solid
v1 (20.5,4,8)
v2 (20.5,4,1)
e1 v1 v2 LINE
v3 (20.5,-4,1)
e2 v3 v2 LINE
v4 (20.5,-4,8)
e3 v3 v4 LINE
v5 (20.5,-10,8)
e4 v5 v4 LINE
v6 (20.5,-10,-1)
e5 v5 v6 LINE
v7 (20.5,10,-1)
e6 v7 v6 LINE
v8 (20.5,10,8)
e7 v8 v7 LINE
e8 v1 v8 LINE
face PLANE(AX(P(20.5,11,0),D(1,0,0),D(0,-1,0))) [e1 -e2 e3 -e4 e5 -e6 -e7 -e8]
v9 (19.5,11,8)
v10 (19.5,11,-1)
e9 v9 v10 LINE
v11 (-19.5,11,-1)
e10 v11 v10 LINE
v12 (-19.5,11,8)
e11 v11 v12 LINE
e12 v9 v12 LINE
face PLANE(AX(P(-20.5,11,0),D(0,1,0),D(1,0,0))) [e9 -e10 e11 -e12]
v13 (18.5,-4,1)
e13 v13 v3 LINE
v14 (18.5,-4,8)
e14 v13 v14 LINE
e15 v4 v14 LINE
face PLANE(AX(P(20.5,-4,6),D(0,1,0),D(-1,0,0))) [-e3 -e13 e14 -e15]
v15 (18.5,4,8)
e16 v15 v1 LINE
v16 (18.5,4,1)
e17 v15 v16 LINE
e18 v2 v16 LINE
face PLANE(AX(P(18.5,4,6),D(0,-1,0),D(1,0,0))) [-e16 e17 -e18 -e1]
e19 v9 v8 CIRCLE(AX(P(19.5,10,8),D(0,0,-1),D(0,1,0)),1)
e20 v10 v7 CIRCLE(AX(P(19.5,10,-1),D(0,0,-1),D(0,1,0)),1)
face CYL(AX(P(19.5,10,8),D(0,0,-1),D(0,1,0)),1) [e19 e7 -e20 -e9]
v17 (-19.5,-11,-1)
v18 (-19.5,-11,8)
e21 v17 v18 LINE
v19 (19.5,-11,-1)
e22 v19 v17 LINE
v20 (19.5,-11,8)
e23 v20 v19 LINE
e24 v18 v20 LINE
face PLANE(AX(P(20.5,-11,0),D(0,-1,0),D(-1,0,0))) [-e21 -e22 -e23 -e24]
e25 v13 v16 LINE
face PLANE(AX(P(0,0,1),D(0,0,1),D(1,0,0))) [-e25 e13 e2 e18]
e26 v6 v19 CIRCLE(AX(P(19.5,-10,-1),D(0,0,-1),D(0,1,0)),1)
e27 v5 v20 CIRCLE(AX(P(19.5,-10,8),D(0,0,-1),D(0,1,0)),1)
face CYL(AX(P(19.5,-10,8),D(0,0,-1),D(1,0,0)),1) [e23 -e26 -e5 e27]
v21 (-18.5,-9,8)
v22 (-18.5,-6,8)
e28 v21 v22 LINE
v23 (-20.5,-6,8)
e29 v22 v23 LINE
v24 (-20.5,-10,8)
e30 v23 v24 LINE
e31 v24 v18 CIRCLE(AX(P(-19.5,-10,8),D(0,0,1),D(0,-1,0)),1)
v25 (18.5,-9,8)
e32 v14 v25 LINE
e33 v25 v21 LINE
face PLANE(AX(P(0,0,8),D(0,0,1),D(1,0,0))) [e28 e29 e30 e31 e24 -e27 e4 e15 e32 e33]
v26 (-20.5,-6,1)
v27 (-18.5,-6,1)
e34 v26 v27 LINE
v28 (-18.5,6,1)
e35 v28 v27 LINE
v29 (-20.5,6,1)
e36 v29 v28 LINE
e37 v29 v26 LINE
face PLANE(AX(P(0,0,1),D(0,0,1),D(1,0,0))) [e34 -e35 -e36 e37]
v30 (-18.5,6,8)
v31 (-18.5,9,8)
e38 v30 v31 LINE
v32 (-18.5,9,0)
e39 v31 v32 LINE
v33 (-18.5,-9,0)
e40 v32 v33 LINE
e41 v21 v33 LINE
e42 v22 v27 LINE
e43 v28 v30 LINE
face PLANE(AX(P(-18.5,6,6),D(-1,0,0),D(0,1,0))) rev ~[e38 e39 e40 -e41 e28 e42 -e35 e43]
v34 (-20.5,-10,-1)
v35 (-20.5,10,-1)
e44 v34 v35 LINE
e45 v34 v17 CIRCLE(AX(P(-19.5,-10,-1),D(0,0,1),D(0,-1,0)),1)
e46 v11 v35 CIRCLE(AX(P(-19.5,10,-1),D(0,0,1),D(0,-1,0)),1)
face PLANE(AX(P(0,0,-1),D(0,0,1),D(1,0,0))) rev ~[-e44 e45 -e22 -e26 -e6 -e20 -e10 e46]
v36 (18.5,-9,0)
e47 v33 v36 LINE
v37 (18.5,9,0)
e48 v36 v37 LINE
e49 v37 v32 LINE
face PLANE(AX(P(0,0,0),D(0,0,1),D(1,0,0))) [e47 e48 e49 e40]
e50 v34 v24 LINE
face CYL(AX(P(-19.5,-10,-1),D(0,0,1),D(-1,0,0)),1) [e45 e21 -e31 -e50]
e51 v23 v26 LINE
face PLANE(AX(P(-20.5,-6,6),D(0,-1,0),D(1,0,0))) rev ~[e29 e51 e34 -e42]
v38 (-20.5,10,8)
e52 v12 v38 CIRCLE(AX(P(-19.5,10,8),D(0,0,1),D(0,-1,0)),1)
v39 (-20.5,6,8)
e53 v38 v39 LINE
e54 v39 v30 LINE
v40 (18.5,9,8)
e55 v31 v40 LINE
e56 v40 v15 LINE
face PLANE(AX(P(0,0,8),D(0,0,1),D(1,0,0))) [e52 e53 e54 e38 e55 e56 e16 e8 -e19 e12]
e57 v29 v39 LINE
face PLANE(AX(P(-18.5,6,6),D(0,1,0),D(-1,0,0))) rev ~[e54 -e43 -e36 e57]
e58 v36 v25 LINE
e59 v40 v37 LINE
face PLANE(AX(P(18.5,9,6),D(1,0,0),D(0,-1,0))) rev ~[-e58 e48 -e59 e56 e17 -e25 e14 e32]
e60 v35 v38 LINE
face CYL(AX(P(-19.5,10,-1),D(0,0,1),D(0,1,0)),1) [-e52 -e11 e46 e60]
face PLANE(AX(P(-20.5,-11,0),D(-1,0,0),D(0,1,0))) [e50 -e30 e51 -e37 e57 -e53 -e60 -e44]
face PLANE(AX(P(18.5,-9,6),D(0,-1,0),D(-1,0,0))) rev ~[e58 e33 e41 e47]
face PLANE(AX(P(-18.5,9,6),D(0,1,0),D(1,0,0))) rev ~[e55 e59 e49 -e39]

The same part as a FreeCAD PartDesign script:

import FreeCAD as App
import Part
import Sketcher
Q = App.Units.Quantity


def edges_at(feature, points):
    """Names of the edges that pass closest to the given points."""
    edges = feature.Shape.Edges
    near = lambda p: min(range(len(edges)), key=lambda i: edges[i].distToShape(Part.Vertex(*p))[0])
    return sorted({f"Edge{near(p) + 1}" for p in points})

doc = App.newDocument("Part")
params = doc.addObject("Spreadsheet::Sheet", "Params")
for row, (alias, value) in enumerate([
    ("sketch1_width", "41 mm"),
    ("sketch1_height", "22 mm"),
    ("pad1_length", "1 mm"),
    ("sketch2_width", "37 mm"),
    ("sketch2_height", "18 mm"),
    ("pad2_length", "6 mm"),
    ("sketch3_height", "12 mm"),
    ("sketch3_width", "20.5 mm"),
    ("pocket1_length", "5 mm"),
    ("sketch4_height", "8 mm"),
    ("sketch4_width", "20.5 mm"),
    ("pocket2_length", "5 mm"),
    ("sketch5_width", "2 mm"),
    ("sketch5_width2", "37 mm"),
    ("sketch5_height", "7 mm"),
    ("sketch5_height2", "5 mm"),
    ("pad3_length", "2 mm"),
    ("fillet_radius", "1 mm"),
], start=1):
    params.set(f"A{row}", alias)
    params.set(f"B{row}", "=" + value)
    params.setAlias(f"B{row}", alias)

body = doc.addObject("PartDesign::Body", "Body")

sketch1 = body.newObject("Sketcher::SketchObject", "Sketch")
sketch1.AttachmentSupport = (doc.getObject("XY_Plane"), [""])
sketch1.MapMode = "FlatFace"
sketch1.addGeometry([
    Part.LineSegment(App.Vector(20, 11, 0), App.Vector(-20, 11, 0)),
    Part.LineSegment(App.Vector(-20, 11, 0), App.Vector(-20, -11, 0)),
    Part.LineSegment(App.Vector(-20, -11, 0), App.Vector(20, -11, 0)),
    Part.LineSegment(App.Vector(20, -11, 0), App.Vector(20, 11, 0)),
], False)
sketch1.addConstraint([
    Sketcher.Constraint("Coincident", 0, 2, 1, 1),
    Sketcher.Constraint("Coincident", 1, 2, 2, 1),
    Sketcher.Constraint("Coincident", 2, 2, 3, 1),
    Sketcher.Constraint("Coincident", 3, 2, 0, 1),
    Sketcher.Constraint("Horizontal", 0),
    Sketcher.Constraint("Vertical", 1),
    Sketcher.Constraint("Horizontal", 2),
    Sketcher.Constraint("Vertical", 3),
    Sketcher.Constraint("Symmetric", 0, 2, 2, 2, -1, 1),
    Sketcher.Constraint("DistanceX", 0, 2, 0, 1, Q("41 mm")),
    Sketcher.Constraint("DistanceY", 1, 2, 1, 1, Q("22 mm")),
])
sketch1.setExpression("Constraints[9]", "Params.sketch1_width")
sketch1.setExpression("Constraints[10]", "Params.sketch1_height")
pad1 = body.newObject("PartDesign::Pad", "Pad")
pad1.Profile = sketch1
pad1.setExpression("Length", "Params.pad1_length")
pad1.Reversed = True

sketch2 = body.newObject("Sketcher::SketchObject", "Sketch001")
sketch2.AttachmentSupport = (doc.getObject("XY_Plane"), [""])
sketch2.MapMode = "FlatFace"
sketch2.addGeometry([
    Part.LineSegment(App.Vector(20, 11, 0), App.Vector(-20, 11, 0)),
    Part.LineSegment(App.Vector(-20, 11, 0), App.Vector(-20, -11, 0)),
    Part.LineSegment(App.Vector(-20, -11, 0), App.Vector(20, -11, 0)),
    Part.LineSegment(App.Vector(20, -11, 0), App.Vector(20, 11, 0)),
    Part.LineSegment(App.Vector(18, -9, 0), App.Vector(-18, -9, 0)),
    Part.LineSegment(App.Vector(-18, -9, 0), App.Vector(-18, 9, 0)),
    Part.LineSegment(App.Vector(-18, 9, 0), App.Vector(18, 9, 0)),
    Part.LineSegment(App.Vector(18, 9, 0), App.Vector(18, -9, 0)),
], False)
sketch2.addConstraint([
    Sketcher.Constraint("Coincident", 0, 2, 1, 1),
    Sketcher.Constraint("Coincident", 1, 2, 2, 1),
    Sketcher.Constraint("Coincident", 2, 2, 3, 1),
    Sketcher.Constraint("Coincident", 3, 2, 0, 1),
    Sketcher.Constraint("Coincident", 4, 2, 5, 1),
    Sketcher.Constraint("Coincident", 5, 2, 6, 1),
    Sketcher.Constraint("Coincident", 6, 2, 7, 1),
    Sketcher.Constraint("Coincident", 7, 2, 4, 1),
    Sketcher.Constraint("Horizontal", 0),
    Sketcher.Constraint("Vertical", 1),
    Sketcher.Constraint("Horizontal", 2),
    Sketcher.Constraint("Vertical", 3),
    Sketcher.Constraint("Horizontal", 4),
    Sketcher.Constraint("Vertical", 5),
    Sketcher.Constraint("Horizontal", 6),
    Sketcher.Constraint("Vertical", 7),
    Sketcher.Constraint("Symmetric", 0, 2, 2, 2, -1, 1),
    Sketcher.Constraint("Symmetric", 4, 2, 6, 2, -1, 1),
    Sketcher.Constraint("DistanceX", 4, 2, 4, 1, Q("37 mm")),
    Sketcher.Constraint("DistanceY", 5, 1, 5, 2, Q("18 mm")),
    Sketcher.Constraint("DistanceX", 1, 2, 4, 2, Q("2 mm")),
    Sketcher.Constraint("DistanceY", 1, 2, 4, 2, Q("2 mm")),
])
sketch2.setExpression("Constraints[18]", "Params.sketch2_width")
sketch2.setExpression("Constraints[19]", "Params.sketch2_height")
pad2 = body.newObject("PartDesign::Pad", "Pad001")
pad2.Profile = sketch2
pad2.setExpression("Length", "Params.pad2_length")

sketch3 = body.newObject("Sketcher::SketchObject", "Sketch002")
sketch3.AttachmentSupport = (doc.getObject("XY_Plane"), [""])
sketch3.MapMode = "FlatFace"
sketch3.AttachmentOffset = App.Placement(App.Vector(0, 0, 6), App.Rotation())
sketch3.addGeometry([
    Part.LineSegment(App.Vector(-20, -6, 0), App.Vector(0, -6, 0)),
    Part.LineSegment(App.Vector(0, -6, 0), App.Vector(0, 6, 0)),
    Part.LineSegment(App.Vector(0, 6, 0), App.Vector(-20, 6, 0)),
    Part.LineSegment(App.Vector(-20, 6, 0), App.Vector(-20, -6, 0)),
], False)
sketch3.addConstraint([
    Sketcher.Constraint("Coincident", 0, 2, 1, 1),
    Sketcher.Constraint("Coincident", 1, 2, 2, 1),
    Sketcher.Constraint("Coincident", 2, 2, 3, 1),
    Sketcher.Constraint("Coincident", 3, 2, 0, 1),
    Sketcher.Constraint("Horizontal", 0),
    Sketcher.Constraint("Vertical", 1),
    Sketcher.Constraint("Horizontal", 2),
    Sketcher.Constraint("Vertical", 3),
    Sketcher.Constraint("Symmetric", 0, 2, 1, 2, -1, 1),
    Sketcher.Constraint("DistanceY", 1, 1, 1, 2, Q("12 mm")),
    Sketcher.Constraint("DistanceX", 0, 1, 0, 2, Q("20.5 mm")),
])
sketch3.setExpression("Constraints[9]", "Params.sketch3_height")
sketch3.setExpression("Constraints[10]", "Params.sketch3_width")
pocket1 = body.newObject("PartDesign::Pocket", "Pocket")
pocket1.Profile = sketch3
pocket1.setExpression("Length", "Params.pocket1_length")

sketch4 = body.newObject("Sketcher::SketchObject", "Sketch003")
sketch4.AttachmentSupport = (doc.getObject("XY_Plane"), [""])
sketch4.MapMode = "FlatFace"
sketch4.AttachmentOffset = App.Placement(App.Vector(0, 0, 6), App.Rotation())
sketch4.addGeometry([
    Part.LineSegment(App.Vector(20, -4, 0), App.Vector(20, 4, 0)),
    Part.LineSegment(App.Vector(20, 4, 0), App.Vector(0, 4, 0)),
    Part.LineSegment(App.Vector(0, 4, 0), App.Vector(0, -4, 0)),
    Part.LineSegment(App.Vector(0, -4, 0), App.Vector(20, -4, 0)),
], False)
sketch4.addConstraint([
    Sketcher.Constraint("Coincident", 0, 2, 1, 1),
    Sketcher.Constraint("Coincident", 1, 2, 2, 1),
    Sketcher.Constraint("Coincident", 2, 2, 3, 1),
    Sketcher.Constraint("Coincident", 3, 2, 0, 1),
    Sketcher.Constraint("Vertical", 0),
    Sketcher.Constraint("Horizontal", 1),
    Sketcher.Constraint("Vertical", 2),
    Sketcher.Constraint("Horizontal", 3),
    Sketcher.Constraint("Symmetric", 1, 2, 2, 2, -1, 1),
    Sketcher.Constraint("DistanceY", 0, 1, 0, 2, Q("8 mm")),
    Sketcher.Constraint("DistanceX", 1, 2, 1, 1, Q("20.5 mm")),
])
sketch4.setExpression("Constraints[9]", "Params.sketch4_height")
sketch4.setExpression("Constraints[10]", "Params.sketch4_width")
pocket2 = body.newObject("PartDesign::Pocket", "Pocket001")
pocket2.Profile = sketch4
pocket2.setExpression("Length", "Params.pocket2_length")

sketch5 = body.newObject("Sketcher::SketchObject", "Sketch004")
sketch5.AttachmentSupport = (doc.getObject("XY_Plane"), [""])
sketch5.MapMode = "FlatFace"
sketch5.AttachmentOffset = App.Placement(App.Vector(0, 0, 6), App.Rotation())
sketch5.addGeometry([
    Part.LineSegment(App.Vector(20.5, -11, 0), App.Vector(20.5, -4, 0)),
    Part.LineSegment(App.Vector(20.5, -4, 0), App.Vector(18.5, -4, 0)),
    Part.LineSegment(App.Vector(18.5, -4, 0), App.Vector(18.5, -9, 0)),
    Part.LineSegment(App.Vector(18.5, -9, 0), App.Vector(-18.5, -9, 0)),
    Part.LineSegment(App.Vector(-18.5, -9, 0), App.Vector(-18.5, -6, 0)),
    Part.LineSegment(App.Vector(-18.5, -6, 0), App.Vector(-20.5, -6, 0)),
    Part.LineSegment(App.Vector(-20.5, -6, 0), App.Vector(-20.5, -11, 0)),
    Part.LineSegment(App.Vector(-20.5, -11, 0), App.Vector(20.5, -11, 0)),
    Part.LineSegment(App.Vector(18.5, 9, 0), App.Vector(18.5, 4, 0)),
    Part.LineSegment(App.Vector(18.5, 4, 0), App.Vector(20.5, 4, 0)),
    Part.LineSegment(App.Vector(20.5, 4, 0), App.Vector(20.5, 11, 0)),
    Part.LineSegment(App.Vector(20.5, 11, 0), App.Vector(-20.5, 11, 0)),
    Part.LineSegment(App.Vector(-20.5, 11, 0), App.Vector(-20.5, 6, 0)),
    Part.LineSegment(App.Vector(-20.5, 6, 0), App.Vector(-18.5, 6, 0)),
    Part.LineSegment(App.Vector(-18.5, 6, 0), App.Vector(-18.5, 9, 0)),
    Part.LineSegment(App.Vector(-18.5, 9, 0), App.Vector(18.5, 9, 0)),
], False)
sketch5.addConstraint([
    Sketcher.Constraint("Coincident", 0, 2, 1, 1),
    Sketcher.Constraint("Coincident", 1, 2, 2, 1),
    Sketcher.Constraint("Coincident", 2, 2, 3, 1),
    Sketcher.Constraint("Coincident", 3, 2, 4, 1),
    Sketcher.Constraint("Coincident", 4, 2, 5, 1),
    Sketcher.Constraint("Coincident", 5, 2, 6, 1),
    Sketcher.Constraint("Coincident", 6, 2, 7, 1),
    Sketcher.Constraint("Coincident", 7, 2, 0, 1),
    Sketcher.Constraint("Coincident", 8, 2, 9, 1),
    Sketcher.Constraint("Coincident", 9, 2, 10, 1),
    Sketcher.Constraint("Coincident", 10, 2, 11, 1),
    Sketcher.Constraint("Coincident", 11, 2, 12, 1),
    Sketcher.Constraint("Coincident", 12, 2, 13, 1),
    Sketcher.Constraint("Coincident", 13, 2, 14, 1),
    Sketcher.Constraint("Coincident", 14, 2, 15, 1),
    Sketcher.Constraint("Coincident", 15, 2, 8, 1),
    Sketcher.Constraint("Vertical", 0),
    Sketcher.Constraint("Horizontal", 1),
    Sketcher.Constraint("Vertical", 2),
    Sketcher.Constraint("Horizontal", 3),
    Sketcher.Constraint("Vertical", 4),
    Sketcher.Constraint("Horizontal", 5),
    Sketcher.Constraint("Vertical", 6),
    Sketcher.Constraint("Horizontal", 7),
    Sketcher.Constraint("Vertical", 8),
    Sketcher.Constraint("Horizontal", 9),
    Sketcher.Constraint("Vertical", 10),
    Sketcher.Constraint("Horizontal", 11),
    Sketcher.Constraint("Vertical", 12),
    Sketcher.Constraint("Horizontal", 13),
    Sketcher.Constraint("Vertical", 14),
    Sketcher.Constraint("Horizontal", 15),
    Sketcher.Constraint("Symmetric", 6, 2, 10, 2, -1, 1),
    Sketcher.Constraint("Symmetric", 2, 2, 14, 2, -1, 1),
    Sketcher.Constraint("Symmetric", 1, 2, 8, 2, -1),
    Sketcher.Constraint("Symmetric", 5, 2, 12, 2, -1),
    Sketcher.Constraint("Vertical", 7, 2, 9, 2),
    Sketcher.Constraint("Vertical", 4, 2, 13, 2),
    Sketcher.Constraint("Equal", 2, 6),
    Sketcher.Constraint("DistanceX", 1, 2, 1, 1, Q("2 mm")),
    Sketcher.Constraint("DistanceX", 3, 2, 3, 1, Q("37 mm")),
    Sketcher.Constraint("DistanceY", 0, 1, 0, 2, Q("7 mm")),
    Sketcher.Constraint("DistanceY", 2, 2, 2, 1, Q("5 mm")),
    Sketcher.Constraint("DistanceY", 0, 2, -1, 1, Q("4 mm")),
])
sketch5.setExpression("Constraints[39]", "Params.sketch5_width")
sketch5.setExpression("Constraints[40]", "Params.sketch5_width2")
sketch5.setExpression("Constraints[41]", "Params.sketch5_height")
sketch5.setExpression("Constraints[42]", "Params.sketch5_height2")
pad3 = body.newObject("PartDesign::Pad", "Pad002")
pad3.Profile = sketch5
pad3.setExpression("Length", "Params.pad3_length")
doc.recompute()

fillet = body.newObject("PartDesign::Fillet", "Fillet")
fillet.Base = (pad3, edges_at(pad3, [
    (20.5, 11, 3.5),
    (-20.5, 11, 3.5),
    (-20.5, -11, 3.5),
    (20.5, -11, 3.5),
]))
fillet.setExpression("Radius", "Params.fillet_radius")

doc.recompute()
